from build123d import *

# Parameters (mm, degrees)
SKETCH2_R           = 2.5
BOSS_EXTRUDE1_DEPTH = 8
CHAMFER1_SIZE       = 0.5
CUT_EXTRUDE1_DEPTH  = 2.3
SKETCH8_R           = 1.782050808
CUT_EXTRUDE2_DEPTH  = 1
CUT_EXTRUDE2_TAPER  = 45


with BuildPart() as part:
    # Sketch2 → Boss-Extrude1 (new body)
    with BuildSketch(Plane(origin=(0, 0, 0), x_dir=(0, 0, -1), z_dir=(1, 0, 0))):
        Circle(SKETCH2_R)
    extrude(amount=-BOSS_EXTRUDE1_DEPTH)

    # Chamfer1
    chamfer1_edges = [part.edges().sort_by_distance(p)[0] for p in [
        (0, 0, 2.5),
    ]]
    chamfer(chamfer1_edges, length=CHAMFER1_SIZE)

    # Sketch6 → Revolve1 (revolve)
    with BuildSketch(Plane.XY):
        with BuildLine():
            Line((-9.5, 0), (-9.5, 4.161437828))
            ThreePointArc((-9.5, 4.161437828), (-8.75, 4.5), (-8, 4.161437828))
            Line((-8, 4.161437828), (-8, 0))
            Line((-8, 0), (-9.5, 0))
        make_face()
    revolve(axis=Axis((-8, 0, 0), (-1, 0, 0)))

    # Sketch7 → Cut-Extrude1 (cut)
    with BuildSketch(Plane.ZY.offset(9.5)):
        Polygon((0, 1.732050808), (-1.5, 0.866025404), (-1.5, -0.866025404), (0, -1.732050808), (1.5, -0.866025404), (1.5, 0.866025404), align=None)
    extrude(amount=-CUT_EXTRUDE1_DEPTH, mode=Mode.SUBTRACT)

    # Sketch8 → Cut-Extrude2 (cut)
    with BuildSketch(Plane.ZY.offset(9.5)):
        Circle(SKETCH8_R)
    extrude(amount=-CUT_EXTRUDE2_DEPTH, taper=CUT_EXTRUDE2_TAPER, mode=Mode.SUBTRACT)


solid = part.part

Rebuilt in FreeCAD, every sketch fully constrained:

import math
import FreeCAD as App
import Part
import Sketcher

V = App.Vector
Q = App.Units.Quantity


def edges_at(feature, points):
    """Names of the edges that pass closest to the given points."""
    edges = feature.Shape.Edges
    near = lambda p: min(range(len(edges)), key=lambda i: edges[i].distToShape(Part.Vertex(*p))[0])
    return sorted({f"Edge{near(p) + 1}" for p in points})


def add_polygon(sketch, points):
    """Adds a closed chain of lines whose ends are joined by coincident constraints."""
    first, n = sketch.GeometryCount, len(points)
    for a, b in zip(points, points[1:] + points[:1]):
        sketch.addGeometry(Part.LineSegment(App.Vector(*a, 0), App.Vector(*b, 0)), False)
    for i in range(n):
        sketch.addConstraint(Sketcher.Constraint("Coincident", first + i, 2, first + (i + 1) % n, 1))

doc = App.newDocument("Part")
body = doc.addObject("PartDesign::Body", "Body")

# Sketch on YZ plane
sketch1 = doc.addObject("Sketcher::SketchObject", "Sketch")
body.addObject(sketch1)
sketch1.AttachmentSupport = (doc.YZ_Plane, [""])
sketch1.MapMode = "FlatFace"
sketch1.addGeometry(Part.Circle(V(0, 0, 0), V(0, 0, 1), 2.5), False)
sketch1.addConstraint([
    Sketcher.Constraint("Coincident", 0, 3, -1, 1),
    Sketcher.Constraint("Diameter", 0, 5.0),
])
pad1 = doc.addObject("PartDesign::Pad", "Pad")
body.addObject(pad1)
pad1.Profile = sketch1
pad1.Length = 8
pad1.Reversed = True
doc.recompute()

chamfer = doc.addObject("PartDesign::Chamfer", "Chamfer")
body.addObject(chamfer)
chamfer.Base = (pad1, edges_at(pad1, [(0, 0, 2.5)]))
chamfer.Size = 0.5

# Sketch on XY plane
sketch2 = doc.addObject("Sketcher::SketchObject", "Sketch001")
body.addObject(sketch2)
sketch2.AttachmentSupport = (doc.XY_Plane, [""])
sketch2.MapMode = "FlatFace"
sketch2.addGeometry([
    Part.LineSegment(V(-9.5, 4.2, 0), V(-9.5, 0, 0)),
    Part.LineSegment(V(-9.5, 0, 0), V(-8, 0, 0)),
    Part.LineSegment(V(-8, 0, 0), V(-8, 4.2, 0)),
    Part.ArcOfCircle(Part.Circle(V(-8.8, 3.5, 0), V(0, 0, 1), 1), math.radians(41), math.radians(139)),
], False)
sketch2.addConstraint([
    Sketcher.Constraint("Coincident", 0, 2, 1, 1),
    Sketcher.Constraint("Coincident", 1, 2, 2, 1),
    Sketcher.Constraint("Coincident", 2, 2, 3, 1),
    Sketcher.Constraint("Coincident", 3, 2, 0, 1),
    Sketcher.Constraint("Vertical", 0),
    Sketcher.Constraint("Horizontal", 1),
    Sketcher.Constraint("Vertical", 2),
    Sketcher.Constraint("PointOnObject", 0, 2, -1),
    Sketcher.Constraint("Horizontal", 2, 2, 3, 2),
    Sketcher.Constraint("Radius", 3, 1.0),
    Sketcher.Constraint("DistanceX", 1, 1, 1, 2, 1.5),
    Sketcher.Constraint("DistanceX", 1, 2, -1, 1, 8.0),
    Sketcher.Constraint("DistanceY", -1, 1, 3, 3, 3.5),
])
revolution = doc.addObject("PartDesign::Revolution", "Revolution")
body.addObject(revolution)
revolution.Profile = sketch2
revolution.ReferenceAxis = (sketch2, ["H_Axis"])
revolution.Angle = 360

# Sketch on YZ plane
sketch3 = doc.addObject("Sketcher::SketchObject", "Sketch002")
body.addObject(sketch3)
sketch3.AttachmentSupport = (doc.YZ_Plane, [""])
sketch3.MapMode = "FlatFace"
sketch3.AttachmentOffset = App.Placement(V(0, 0, -9.5), App.Rotation())
add_polygon(sketch3, [(1.7, 0), (0.9, -1.5), (-0.9, -1.5), (-1.7, 0), (-0.9, 1.5), (0.9, 1.5)])  # lines 0-5
sketch3.addConstraint([
    Sketcher.Constraint("Horizontal", 1),
    Sketcher.Constraint("Horizontal", 4),
    Sketcher.Constraint("Symmetric", 0, 2, 3, 2, -1, 1),
    Sketcher.Constraint("Symmetric", 2, 2, 5, 2, -1, 1),
    Sketcher.Constraint("PointOnObject", 2, 2, -1),
    Sketcher.Constraint("Parallel", 2, 5),
    Sketcher.Constraint("Vertical", 1, 2, 3, 2),
    Sketcher.Constraint("Angle", 0, Q("-120 deg")),
    Sketcher.Constraint("DistanceY", 1, 2, 3, 2, 3.0),
    Sketcher.Constraint("DistanceX", 1, 2, 1, 1, 1.732051),
])
pocket1 = doc.addObject("PartDesign::Pocket", "Pocket")
body.addObject(pocket1)
pocket1.Profile = sketch3
pocket1.Length = 2.3
pocket1.Reversed = True

# Sketch on YZ plane
sketch4 = doc.addObject("Sketcher::SketchObject", "Sketch003")
body.addObject(sketch4)
sketch4.AttachmentSupport = (doc.YZ_Plane, [""])
sketch4.MapMode = "FlatFace"
sketch4.AttachmentOffset = App.Placement(V(0, 0, -9.5), App.Rotation())
sketch4.addGeometry(Part.Circle(V(0, 0, 0), V(0, 0, 1), 1.8), False)
sketch4.addConstraint([
    Sketcher.Constraint("Coincident", 0, 3, -1, 1),
    Sketcher.Constraint("Diameter", 0, 3.564102),
])
pocket2 = doc.addObject("PartDesign::Pocket", "Pocket001")
body.addObject(pocket2)
pocket2.Profile = sketch4
pocket2.Length = 1
pocket2.Reversed = True
pocket2.TaperAngle = -45

doc.recompute()
